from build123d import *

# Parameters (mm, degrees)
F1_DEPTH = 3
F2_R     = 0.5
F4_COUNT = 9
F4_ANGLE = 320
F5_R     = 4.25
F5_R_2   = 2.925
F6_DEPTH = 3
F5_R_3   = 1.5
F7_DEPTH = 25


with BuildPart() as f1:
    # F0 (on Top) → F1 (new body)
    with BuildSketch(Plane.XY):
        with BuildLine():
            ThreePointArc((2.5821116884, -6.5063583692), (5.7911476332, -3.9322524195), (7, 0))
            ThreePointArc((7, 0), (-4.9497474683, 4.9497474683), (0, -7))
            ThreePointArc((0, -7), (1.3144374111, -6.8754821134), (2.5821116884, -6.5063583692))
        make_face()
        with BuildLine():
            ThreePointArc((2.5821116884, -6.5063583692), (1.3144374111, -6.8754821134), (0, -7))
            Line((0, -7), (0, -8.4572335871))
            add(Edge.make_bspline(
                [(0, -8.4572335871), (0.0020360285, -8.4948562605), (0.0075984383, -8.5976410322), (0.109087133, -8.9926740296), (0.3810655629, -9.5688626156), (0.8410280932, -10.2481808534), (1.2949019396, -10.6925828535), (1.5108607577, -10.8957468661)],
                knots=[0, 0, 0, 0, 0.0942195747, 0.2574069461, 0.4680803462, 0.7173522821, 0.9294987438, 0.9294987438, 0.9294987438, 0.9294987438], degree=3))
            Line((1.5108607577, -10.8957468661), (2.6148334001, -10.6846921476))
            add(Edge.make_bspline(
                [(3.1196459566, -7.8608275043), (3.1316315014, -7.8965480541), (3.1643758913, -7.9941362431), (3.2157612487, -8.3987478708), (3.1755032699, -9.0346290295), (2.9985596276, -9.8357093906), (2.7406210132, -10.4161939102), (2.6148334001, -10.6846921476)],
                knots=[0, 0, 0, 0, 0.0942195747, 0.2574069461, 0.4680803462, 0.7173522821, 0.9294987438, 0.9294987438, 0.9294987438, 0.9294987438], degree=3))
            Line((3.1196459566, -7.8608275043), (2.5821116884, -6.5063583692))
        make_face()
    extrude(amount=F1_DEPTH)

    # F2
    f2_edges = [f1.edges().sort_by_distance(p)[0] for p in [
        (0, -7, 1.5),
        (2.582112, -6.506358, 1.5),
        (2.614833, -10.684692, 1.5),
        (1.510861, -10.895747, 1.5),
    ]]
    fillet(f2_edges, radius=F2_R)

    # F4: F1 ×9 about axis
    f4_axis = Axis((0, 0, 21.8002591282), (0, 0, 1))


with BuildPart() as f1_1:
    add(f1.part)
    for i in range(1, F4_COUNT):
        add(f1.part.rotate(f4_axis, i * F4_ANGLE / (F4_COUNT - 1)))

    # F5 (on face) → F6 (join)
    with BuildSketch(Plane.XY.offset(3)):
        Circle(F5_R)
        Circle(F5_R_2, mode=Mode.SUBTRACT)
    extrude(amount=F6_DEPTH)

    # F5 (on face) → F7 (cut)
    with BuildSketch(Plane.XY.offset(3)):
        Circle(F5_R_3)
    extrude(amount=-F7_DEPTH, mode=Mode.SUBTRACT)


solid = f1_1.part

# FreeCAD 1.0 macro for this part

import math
import FreeCAD as App
import Part
import Sketcher


def edges_at(feature, points):
    """Names of the edges that pass closest to the given points."""
    edges = feature.Shape.Edges
    near = lambda p: min(range(len(edges)), key=lambda i: edges[i].distToShape(Part.Vertex(*p))[0])
    return sorted({f"Edge{near(p) + 1}" for p in points})

doc = App.newDocument("Part")
params = doc.addObject("Spreadsheet::Sheet", "Params")
for row, (alias, value) in enumerate([
    ("sketch1_radius", "7 mm"),
    ("pad1_length", "3 mm"),
    ("fillet_radius", "0.5 mm"),
    ("sketch2_diameter", "8.5 mm"),
    ("sketch2_diameter2", "5.85 mm"),
    ("pad2_length", "3 mm"),
    ("sketch3_diameter", "3 mm"),
    ("pocket1_length", "25 mm"),
], start=1):
    params.set(f"A{row}", alias)
    params.set(f"B{row}", "=" + value)
    params.setAlias(f"B{row}", alias)

body = doc.addObject("PartDesign::Body", "Body")

# Sketch on XY plane
sketch1 = body.newObject("Sketcher::SketchObject", "Sketch")
sketch1.AttachmentSupport = (doc.getObject("XY_Plane"), [""])
sketch1.MapMode = "FlatFace"
sketch1.addGeometry([
    Part.ArcOfCircle(Part.Circle(App.Vector(0, 0, 0), App.Vector(0, 0, 1), 7), math.radians(-68.353865), math.radians(0)),  # 0
    Part.ArcOfCircle(Part.Circle(App.Vector(0, 0, 0), App.Vector(0, 0, 1), 7), math.radians(0), math.radians(270)),  # 1
    Part.LineSegment(App.Vector(0, -7, 0), App.Vector(0, -8.457234, 0)),  # 2
    Part.BSplineCurve([App.Vector(0, -8.457234, 0), App.Vector(0.002036, -8.494856, 0), App.Vector(0.007598, -8.597641, 0), App.Vector(0.109087, -8.992674, 0), App.Vector(0.381066, -9.568863, 0), App.Vector(0.841028, -10.248181, 0), App.Vector(1.294902, -10.692583, 0), App.Vector(1.510861, -10.895747, 0)], [4, 1, 1, 1, 1, 4], [0, 0.094219575, 0.257406946, 0.468080346, 0.717352282, 0.929498744], False, 3, [1, 1, 1, 1, 1, 1, 1, 1], False),  # 3
    Part.LineSegment(App.Vector(1.510861, -10.895747, 0), App.Vector(2.614833, -10.684692, 0)),  # 4
    Part.BSplineCurve([App.Vector(3.119646, -7.860828, 0), App.Vector(3.131632, -7.896548, 0), App.Vector(3.164376, -7.994136, 0), App.Vector(3.215761, -8.398748, 0), App.Vector(3.175503, -9.034629, 0), App.Vector(2.99856, -9.835709, 0), App.Vector(2.740621, -10.416194, 0), App.Vector(2.614833, -10.684692, 0)], [4, 1, 1, 1, 1, 4], [0, 0.094219575, 0.257406946, 0.468080346, 0.717352282, 0.929498744], False, 3, [1, 1, 1, 1, 1, 1, 1, 1], False),  # 5
    Part.LineSegment(App.Vector(3.119646, -7.860828, 0), App.Vector(2.582112, -6.506358, 0)),  # 6
], False)
sketch1.addConstraint([
    Sketcher.Constraint("Block", 3),
    Sketcher.Constraint("Block", 5),
    Sketcher.Constraint("Tangent", 0, 2, 1, 1),
    Sketcher.Constraint("Coincident", 1, 2, 2, 1),
    Sketcher.Constraint("Coincident", 2, 2, 3, 1),
    Sketcher.Constraint("Coincident", 3, 2, 4, 1),
    Sketcher.Constraint("Coincident", 4, 2, 5, 2),
    Sketcher.Constraint("Coincident", 5, 1, 6, 1),
    Sketcher.Constraint("Coincident", 6, 2, 0, 1),
    Sketcher.Constraint("Vertical", 2),
    Sketcher.Constraint("Coincident", 0, 3, -1, 1),
    Sketcher.Constraint("Equal", 0, 1),
    Sketcher.Constraint("PointOnObject", 0, 2, -1),
    Sketcher.Constraint("Radius", 0, 7.0),
    Sketcher.Constraint("DistanceX", -1, 1, 6, 2, 2.582112),
])
sketch1.setExpression("Constraints[13]", "Params.sketch1_radius")
pad1 = body.newObject("PartDesign::Pad", "Pad")
pad1.Profile = sketch1
pad1.setExpression("Length", "Params.pad1_length")
doc.recompute()

fillet = body.newObject("PartDesign::Fillet", "Fillet")
fillet.Base = (pad1, edges_at(pad1, [
    (0, -7, 1.5),
    (2.582, -6.506, 1.5),
    (2.615, -10.685, 1.5),
    (1.511, -10.896, 1.5),
]))
fillet.setExpression("Radius", "Params.fillet_radius")
body2 = doc.addObject("PartDesign::Body", "Body001")
doc.recompute()

body2.BaseFeature = body
doc.recompute()

body3 = doc.addObject("PartDesign::Body", "Body002")
body3.BaseFeature = body
body3.Placement = App.Placement(App.Vector(0, 0, 0), App.Rotation(App.Vector(0, 0, 1), 40))
boolean = body2.newObject("PartDesign::Boolean", "Boolean")
boolean.Type = "Fuse"
boolean.addObjects([body3])
doc.recompute()

body4 = doc.addObject("PartDesign::Body", "Body003")
body4.BaseFeature = body
body4.Placement = App.Placement(App.Vector(0, 0, 0), App.Rotation(App.Vector(0, 0, 1), 80))
boolean2 = body2.newObject("PartDesign::Boolean", "Boolean001")
boolean2.Type = "Fuse"
boolean2.addObjects([body4])
doc.recompute()

body5 = doc.addObject("PartDesign::Body", "Body004")
body5.BaseFeature = body
body5.Placement = App.Placement(App.Vector(0, 0, 0), App.Rotation(App.Vector(0, 0, 1), 120))
boolean3 = body2.newObject("PartDesign::Boolean", "Boolean002")
boolean3.Type = "Fuse"
boolean3.addObjects([body5])
doc.recompute()

body6 = doc.addObject("PartDesign::Body", "Body005")
body6.BaseFeature = body
body6.Placement = App.Placement(App.Vector(0, 0, 0), App.Rotation(App.Vector(0, 0, 1), 160))
boolean4 = body2.newObject("PartDesign::Boolean", "Boolean003")
boolean4.Type = "Fuse"
boolean4.addObjects([body6])
doc.recompute()

body7 = doc.addObject("PartDesign::Body", "Body006")
body7.BaseFeature = body
body7.Placement = App.Placement(App.Vector(0, 0, 0), App.Rotation(App.Vector(0, 0, 1), 200))
boolean5 = body2.newObject("PartDesign::Boolean", "Boolean004")
boolean5.Type = "Fuse"
boolean5.addObjects([body7])
doc.recompute()

body8 = doc.addObject("PartDesign::Body", "Body007")
body8.BaseFeature = body
body8.Placement = App.Placement(App.Vector(0, 0, 0), App.Rotation(App.Vector(0, 0, 1), 240))
boolean6 = body2.newObject("PartDesign::Boolean", "Boolean005")
boolean6.Type = "Fuse"
boolean6.addObjects([body8])
doc.recompute()

body9 = doc.addObject("PartDesign::Body", "Body008")
body9.BaseFeature = body
body9.Placement = App.Placement(App.Vector(0, 0, 0), App.Rotation(App.Vector(0, 0, 1), 280))
boolean7 = body2.newObject("PartDesign::Boolean", "Boolean006")
boolean7.Type = "Fuse"
boolean7.addObjects([body9])
doc.recompute()

body.Placement = App.Placement(App.Vector(0, 0, 0), App.Rotation(App.Vector(0, 0, 1), 320))
boolean8 = body2.newObject("PartDesign::Boolean", "Boolean007")
boolean8.Type = "Fuse"
boolean8.addObjects([body])

# Sketch on XY plane
sketch2 = body2.newObject("Sketcher::SketchObject", "Sketch001")
sketch2.AttachmentSupport = (doc.getObject("XY_Plane001"), [""])
sketch2.MapMode = "FlatFace"
sketch2.AttachmentOffset = App.Placement(App.Vector(0, 0, 3), App.Rotation())
sketch2.addGeometry([
    Part.Circle(App.Vector(0, 0, 0), App.Vector(0, 0, 1), 4.25),
    Part.Circle(App.Vector(0, 0, 0), App.Vector(0, 0, 1), 2.925),
], False)
sketch2.addConstraint([
    Sketcher.Constraint("Coincident", 0, 3, -1, 1),
    Sketcher.Constraint("Coincident", 1, 3, -1, 1),
    Sketcher.Constraint("Diameter", 0, 8.5),
    Sketcher.Constraint("Diameter", 1, 5.85),
])
sketch2.setExpression("Constraints[2]", "Params.sketch2_diameter")
sketch2.setExpression("Constraints[3]", "Params.sketch2_diameter2")
pad2 = body2.newObject("PartDesign::Pad", "Pad001")
pad2.Profile = sketch2
pad2.setExpression("Length", "Params.pad2_length")

# Sketch on XY plane
sketch3 = body2.newObject("Sketcher::SketchObject", "Sketch002")
sketch3.AttachmentSupport = (doc.getObject("XY_Plane001"), [""])
sketch3.MapMode = "FlatFace"
sketch3.AttachmentOffset = App.Placement(App.Vector(0, 0, 3), App.Rotation())
sketch3.addGeometry(Part.Circle(App.Vector(0, 0, 0), App.Vector(0, 0, 1), 1.5), False)
sketch3.addConstraint([
    Sketcher.Constraint("Coincident", 0, 3, -1, 1),
    Sketcher.Constraint("Diameter", 0, 3.0),
])
sketch3.setExpression("Constraints[1]", "Params.sketch3_diameter")
pocket1 = body2.newObject("PartDesign::Pocket", "Pocket")
pocket1.Profile = sketch3
pocket1.setExpression("Length", "Params.pocket1_length")

doc.recompute()
